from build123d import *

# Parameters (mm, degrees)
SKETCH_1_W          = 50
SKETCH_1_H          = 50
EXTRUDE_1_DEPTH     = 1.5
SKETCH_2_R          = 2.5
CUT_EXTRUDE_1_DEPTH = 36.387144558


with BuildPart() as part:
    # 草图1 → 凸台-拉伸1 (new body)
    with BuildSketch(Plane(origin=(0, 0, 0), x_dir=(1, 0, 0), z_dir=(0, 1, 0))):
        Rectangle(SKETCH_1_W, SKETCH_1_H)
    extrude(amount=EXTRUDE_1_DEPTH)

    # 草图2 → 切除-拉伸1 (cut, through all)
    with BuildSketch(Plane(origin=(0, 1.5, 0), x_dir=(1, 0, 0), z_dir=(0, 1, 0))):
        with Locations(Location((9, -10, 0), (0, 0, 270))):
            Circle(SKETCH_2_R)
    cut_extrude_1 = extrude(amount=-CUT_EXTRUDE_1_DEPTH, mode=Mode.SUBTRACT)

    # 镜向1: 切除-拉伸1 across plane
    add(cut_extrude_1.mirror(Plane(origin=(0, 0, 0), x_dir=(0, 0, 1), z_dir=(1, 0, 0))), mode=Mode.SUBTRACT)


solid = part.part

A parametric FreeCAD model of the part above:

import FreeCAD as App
import Part
import Sketcher

V = App.Vector


def add_polygon(sketch, points):
    """Adds a closed chain of lines whose ends are joined by coincident constraints."""
    first, n = sketch.GeometryCount, len(points)
    for a, b in zip(points, points[1:] + points[:1]):
        sketch.addGeometry(Part.LineSegment(App.Vector(*a, 0), App.Vector(*b, 0)), False)
    for i in range(n):
        sketch.addConstraint(Sketcher.Constraint("Coincident", first + i, 2, first + (i + 1) % n, 1))

doc = App.newDocument("Part")
body = doc.addObject("PartDesign::Body", "Body")

# Sketch on XZ plane
sketch1 = doc.addObject("Sketcher::SketchObject", "Sketch")
body.addObject(sketch1)
sketch1.AttachmentSupport = (doc.XZ_Plane, [""])
sketch1.MapMode = "FlatFace"
add_polygon(sketch1, [(-25, -25), (-25, 25), (25, 25), (25, -25)])  # lines 0-3
sketch1.addConstraint(Sketcher.Constraint("Vertical", 0))
sketch1.addConstraint(Sketcher.Constraint("Horizontal", 1))
sketch1.addConstraint(Sketcher.Constraint("Vertical", 2))
sketch1.addConstraint(Sketcher.Constraint("Horizontal", 3))
sketch1.addConstraint(Sketcher.Constraint("Symmetric", 0, 2, 2, 2, -1, 1))
sketch1.addConstraint(Sketcher.Constraint("Equal", 3, 0))
sketch1.addConstraint(Sketcher.Constraint("DistanceX", 1, 1, 1, 2, 50.0))
pad1 = doc.addObject("PartDesign::Pad", "Pad")
body.addObject(pad1)
pad1.Profile = sketch1
pad1.Length = 1.5
pad1.Reversed = True

# Sketch on XZ plane
sketch2 = doc.addObject("Sketcher::SketchObject", "Sketch001")
body.addObject(sketch2)
sketch2.AttachmentSupport = (doc.XZ_Plane, [""])
sketch2.MapMode = "FlatFace"
sketch2.AttachmentOffset = App.Placement(V(0, 0, -1.5), App.Rotation())
sketch2.addGeometry(Part.Circle(V(9, 10, 0), V(0, 0, 1), 2.5), False)
sketch2.addConstraint(Sketcher.Constraint("Diameter", 0, 5.0))
sketch2.addConstraint(Sketcher.Constraint("DistanceX", -1, 1, 0, 3, 9.0))
sketch2.addConstraint(Sketcher.Constraint("DistanceY", -1, 1, 0, 3, 10.0))
pocket1 = doc.addObject("PartDesign::Pocket", "Pocket")
body.addObject(pocket1)
pocket1.Profile = sketch2
pocket1.Type = "ThroughAll"
pocket1.Reversed = True
doc.recompute()

mirrored = doc.addObject("PartDesign::Mirrored", "Mirrored")
body.addObject(mirrored)
mirrored.Originals = [pocket1]
mirrored.MirrorPlane = (doc.YZ_Plane, [""])
body.Tip = mirrored

doc.recompute()
